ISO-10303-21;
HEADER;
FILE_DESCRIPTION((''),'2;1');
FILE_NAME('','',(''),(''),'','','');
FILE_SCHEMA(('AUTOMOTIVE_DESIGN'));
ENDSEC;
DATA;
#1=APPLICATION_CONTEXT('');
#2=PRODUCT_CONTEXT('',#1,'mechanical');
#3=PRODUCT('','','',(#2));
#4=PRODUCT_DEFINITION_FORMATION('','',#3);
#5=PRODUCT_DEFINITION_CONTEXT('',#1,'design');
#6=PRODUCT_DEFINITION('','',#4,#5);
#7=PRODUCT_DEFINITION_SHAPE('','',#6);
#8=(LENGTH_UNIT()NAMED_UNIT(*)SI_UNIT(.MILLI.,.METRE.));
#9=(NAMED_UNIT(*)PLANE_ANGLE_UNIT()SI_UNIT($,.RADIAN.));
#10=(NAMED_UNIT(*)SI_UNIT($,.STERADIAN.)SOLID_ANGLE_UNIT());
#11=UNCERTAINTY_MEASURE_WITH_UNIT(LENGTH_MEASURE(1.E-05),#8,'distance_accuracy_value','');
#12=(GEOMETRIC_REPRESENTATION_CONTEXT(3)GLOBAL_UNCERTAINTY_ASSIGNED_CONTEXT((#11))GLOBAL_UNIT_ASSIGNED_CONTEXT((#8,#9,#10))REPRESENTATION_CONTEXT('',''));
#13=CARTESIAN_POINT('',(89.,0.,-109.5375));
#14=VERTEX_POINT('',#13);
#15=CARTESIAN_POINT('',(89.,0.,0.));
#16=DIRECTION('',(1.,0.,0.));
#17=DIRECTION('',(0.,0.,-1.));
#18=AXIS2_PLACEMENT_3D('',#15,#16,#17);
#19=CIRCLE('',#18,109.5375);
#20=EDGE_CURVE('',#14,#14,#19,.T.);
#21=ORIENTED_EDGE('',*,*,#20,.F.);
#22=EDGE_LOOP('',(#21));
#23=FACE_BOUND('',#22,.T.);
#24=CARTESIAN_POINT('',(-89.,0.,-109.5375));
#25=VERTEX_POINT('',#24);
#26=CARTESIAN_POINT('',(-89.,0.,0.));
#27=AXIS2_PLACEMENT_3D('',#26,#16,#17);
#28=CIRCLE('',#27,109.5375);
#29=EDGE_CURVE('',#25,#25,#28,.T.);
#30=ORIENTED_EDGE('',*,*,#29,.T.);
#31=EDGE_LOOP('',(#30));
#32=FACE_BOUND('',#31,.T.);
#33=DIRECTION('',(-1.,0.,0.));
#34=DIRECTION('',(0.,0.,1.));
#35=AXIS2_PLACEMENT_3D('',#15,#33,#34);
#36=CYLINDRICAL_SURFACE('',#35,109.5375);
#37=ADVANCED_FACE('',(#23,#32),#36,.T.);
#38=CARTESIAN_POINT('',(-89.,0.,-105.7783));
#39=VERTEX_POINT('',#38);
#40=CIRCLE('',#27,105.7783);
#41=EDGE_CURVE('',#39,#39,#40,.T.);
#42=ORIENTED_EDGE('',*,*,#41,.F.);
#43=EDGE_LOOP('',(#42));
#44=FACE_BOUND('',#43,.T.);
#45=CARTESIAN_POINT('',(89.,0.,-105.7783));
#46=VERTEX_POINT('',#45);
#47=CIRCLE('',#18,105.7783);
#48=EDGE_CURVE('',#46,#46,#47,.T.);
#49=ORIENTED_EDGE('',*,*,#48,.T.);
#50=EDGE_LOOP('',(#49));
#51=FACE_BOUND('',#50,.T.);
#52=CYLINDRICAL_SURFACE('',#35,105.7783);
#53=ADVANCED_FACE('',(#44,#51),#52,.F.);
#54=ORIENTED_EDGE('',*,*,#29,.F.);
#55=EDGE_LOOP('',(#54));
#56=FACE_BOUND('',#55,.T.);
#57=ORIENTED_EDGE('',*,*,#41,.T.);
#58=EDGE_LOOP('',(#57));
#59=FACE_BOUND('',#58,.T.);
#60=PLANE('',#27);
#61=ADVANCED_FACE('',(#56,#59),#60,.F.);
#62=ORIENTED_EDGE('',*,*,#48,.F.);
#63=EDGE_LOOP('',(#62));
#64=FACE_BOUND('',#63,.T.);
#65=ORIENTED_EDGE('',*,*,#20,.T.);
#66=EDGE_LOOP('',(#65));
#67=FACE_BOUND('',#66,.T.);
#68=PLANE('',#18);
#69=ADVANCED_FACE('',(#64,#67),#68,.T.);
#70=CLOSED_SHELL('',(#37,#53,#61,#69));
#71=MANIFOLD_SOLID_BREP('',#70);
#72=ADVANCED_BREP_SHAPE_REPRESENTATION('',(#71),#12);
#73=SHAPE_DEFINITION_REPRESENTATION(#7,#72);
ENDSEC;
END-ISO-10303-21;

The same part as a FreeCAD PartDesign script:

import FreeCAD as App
import Part
import Sketcher

V = App.Vector
Q = App.Units.Quantity

doc = App.newDocument("Part")
params = doc.addObject("Spreadsheet::Sheet", "Params")
for row, (alias, value) in enumerate([
    ("sketch1_diameter", "8.625 in"),
    ("sketch1_diameter2", "8.329 in"),
    ("pad1_length", "178 mm"),
], start=1):
    params.set(f"A{row}", alias)
    params.set(f"B{row}", "=" + value)
    params.setAlias(f"B{row}", alias)

body = doc.addObject("PartDesign::Body", "Body")

# Sketch on YZ plane
sketch1 = doc.addObject("Sketcher::SketchObject", "Sketch")
body.addObject(sketch1)
sketch1.AttachmentSupport = (doc.YZ_Plane, [""])
sketch1.MapMode = "FlatFace"
sketch1.addGeometry(Part.Circle(V(0, 0, 0), V(0, 0, 1), 110), False)
sketch1.addGeometry(Part.Circle(V(0, 0, 0), V(0, 0, 1), 106), False)
sketch1.addConstraint(Sketcher.Constraint("Coincident", 0, 3, -1, 1))
sketch1.addConstraint(Sketcher.Constraint("Coincident", 1, 3, -1, 1))
sketch1.addConstraint(Sketcher.Constraint("Diameter", 0, Q("8.625 in")))
sketch1.addConstraint(Sketcher.Constraint("Diameter", 1, Q("8.329 in")))
sketch1.setExpression("Constraints[2]", "Params.sketch1_diameter")
sketch1.setExpression("Constraints[3]", "Params.sketch1_diameter2")
pad1 = doc.addObject("PartDesign::Pad", "Pad")
body.addObject(pad1)
pad1.Profile = sketch1
pad1.setExpression("Length", "Params.pad1_length")
pad1.Midplane = True

doc.recompute()
